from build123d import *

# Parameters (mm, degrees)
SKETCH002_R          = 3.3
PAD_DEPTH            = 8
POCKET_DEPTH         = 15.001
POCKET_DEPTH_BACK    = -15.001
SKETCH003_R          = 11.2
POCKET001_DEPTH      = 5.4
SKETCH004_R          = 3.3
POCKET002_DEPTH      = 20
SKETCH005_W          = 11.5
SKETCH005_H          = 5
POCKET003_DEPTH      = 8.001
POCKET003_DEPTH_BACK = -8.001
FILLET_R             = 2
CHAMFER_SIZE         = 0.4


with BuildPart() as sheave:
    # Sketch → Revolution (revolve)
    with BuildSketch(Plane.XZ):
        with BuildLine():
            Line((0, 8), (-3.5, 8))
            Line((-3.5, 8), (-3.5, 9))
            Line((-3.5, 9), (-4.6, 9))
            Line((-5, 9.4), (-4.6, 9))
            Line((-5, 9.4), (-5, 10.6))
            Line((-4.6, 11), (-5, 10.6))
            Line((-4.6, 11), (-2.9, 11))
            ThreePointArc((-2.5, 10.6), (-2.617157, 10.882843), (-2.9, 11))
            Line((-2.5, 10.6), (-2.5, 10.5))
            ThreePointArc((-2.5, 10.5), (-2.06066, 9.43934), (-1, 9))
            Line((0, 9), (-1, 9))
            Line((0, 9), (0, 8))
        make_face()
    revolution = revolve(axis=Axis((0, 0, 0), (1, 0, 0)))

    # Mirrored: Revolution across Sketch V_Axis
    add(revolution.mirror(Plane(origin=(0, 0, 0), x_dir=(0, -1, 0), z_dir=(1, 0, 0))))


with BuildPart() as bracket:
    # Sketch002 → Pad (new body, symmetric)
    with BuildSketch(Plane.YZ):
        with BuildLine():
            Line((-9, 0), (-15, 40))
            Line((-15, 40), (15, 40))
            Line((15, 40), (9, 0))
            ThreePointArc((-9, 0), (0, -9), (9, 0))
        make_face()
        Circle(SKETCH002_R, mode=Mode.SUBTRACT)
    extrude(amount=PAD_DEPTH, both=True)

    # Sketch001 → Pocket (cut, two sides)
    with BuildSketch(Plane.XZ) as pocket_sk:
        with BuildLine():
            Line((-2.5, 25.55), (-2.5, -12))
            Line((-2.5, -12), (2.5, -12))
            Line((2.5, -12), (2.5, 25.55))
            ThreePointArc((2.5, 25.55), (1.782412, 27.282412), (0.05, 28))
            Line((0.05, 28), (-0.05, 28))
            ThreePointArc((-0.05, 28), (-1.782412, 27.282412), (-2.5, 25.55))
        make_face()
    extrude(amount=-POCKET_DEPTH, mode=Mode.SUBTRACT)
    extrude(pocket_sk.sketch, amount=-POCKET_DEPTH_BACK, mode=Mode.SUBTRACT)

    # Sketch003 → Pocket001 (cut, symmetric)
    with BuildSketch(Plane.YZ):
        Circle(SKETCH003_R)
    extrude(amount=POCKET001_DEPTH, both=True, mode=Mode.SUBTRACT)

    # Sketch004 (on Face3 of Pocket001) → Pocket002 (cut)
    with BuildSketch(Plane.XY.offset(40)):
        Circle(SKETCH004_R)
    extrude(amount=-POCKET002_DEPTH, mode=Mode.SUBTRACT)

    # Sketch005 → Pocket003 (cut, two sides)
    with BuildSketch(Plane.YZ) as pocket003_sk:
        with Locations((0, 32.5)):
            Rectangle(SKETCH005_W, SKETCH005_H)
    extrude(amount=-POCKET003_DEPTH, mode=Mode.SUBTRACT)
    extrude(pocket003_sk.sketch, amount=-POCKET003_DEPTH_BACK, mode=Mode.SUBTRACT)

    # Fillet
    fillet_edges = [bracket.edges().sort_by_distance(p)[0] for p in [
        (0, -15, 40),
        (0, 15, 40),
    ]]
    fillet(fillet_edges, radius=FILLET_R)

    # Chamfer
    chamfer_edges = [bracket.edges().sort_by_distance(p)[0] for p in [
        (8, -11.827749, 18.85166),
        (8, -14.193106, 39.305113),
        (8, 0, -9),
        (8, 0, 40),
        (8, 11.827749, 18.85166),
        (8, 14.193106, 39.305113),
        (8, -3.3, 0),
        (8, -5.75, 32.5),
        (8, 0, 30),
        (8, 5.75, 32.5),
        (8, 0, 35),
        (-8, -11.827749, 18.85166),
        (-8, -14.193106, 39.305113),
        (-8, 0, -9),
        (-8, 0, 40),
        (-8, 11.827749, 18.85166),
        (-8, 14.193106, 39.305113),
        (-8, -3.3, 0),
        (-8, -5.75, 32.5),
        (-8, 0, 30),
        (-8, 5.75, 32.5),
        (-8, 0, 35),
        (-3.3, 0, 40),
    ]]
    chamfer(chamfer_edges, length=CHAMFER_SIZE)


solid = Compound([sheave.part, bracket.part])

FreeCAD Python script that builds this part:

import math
import FreeCAD as App
import Part
import Sketcher
Q = App.Units.Quantity


def edges_at(feature, points):
    """Names of the edges that pass closest to the given points."""
    edges = feature.Shape.Edges
    near = lambda p: min(range(len(edges)), key=lambda i: edges[i].distToShape(Part.Vertex(*p))[0])
    return sorted({f"Edge{near(p) + 1}" for p in points})

doc = App.newDocument("Part")
body = doc.addObject("PartDesign::Body", "Body")

sketch1 = body.newObject("Sketcher::SketchObject", "Sketch")
sketch1.AttachmentSupport = (doc.getObject("XZ_Plane"), [""])
sketch1.MapMode = "FlatFace"
sketch1.addGeometry([
    Part.LineSegment(App.Vector(-3.5, 8, 0), App.Vector(0, 8, 0)),
    Part.LineSegment(App.Vector(0, 8, 0), App.Vector(0, 9, 0)),
    Part.LineSegment(App.Vector(0, 9, 0), App.Vector(-1, 9, 0)),
    Part.ArcOfCircle(Part.Circle(App.Vector(-1, 10.5, 0), App.Vector(0, 0, 1), 1.5), math.radians(-180), math.radians(-90)),
    Part.LineSegment(App.Vector(-2.5, 10.5, 0), App.Vector(-2.5, 10.6, 0)),
    Part.ArcOfCircle(Part.Circle(App.Vector(-2.9, 10.6, 0), App.Vector(0, 0, 1), 0.4), math.radians(0), math.radians(90)),
    Part.LineSegment(App.Vector(-2.9, 11, 0), App.Vector(-4.6, 11, 0)),
    Part.LineSegment(App.Vector(-4.6, 11, 0), App.Vector(-5, 10.6, 0)),
    Part.LineSegment(App.Vector(-5, 10.6, 0), App.Vector(-5, 9.4, 0)),
    Part.LineSegment(App.Vector(-5, 9.4, 0), App.Vector(-4.6, 9, 0)),
    Part.LineSegment(App.Vector(-4.6, 9, 0), App.Vector(-3.5, 9, 0)),
    Part.LineSegment(App.Vector(-3.5, 9, 0), App.Vector(-3.5, 8, 0)),
], False)
sketch1.addConstraint([
    Sketcher.Constraint("Coincident", 0, 2, 1, 1),
    Sketcher.Constraint("Coincident", 1, 2, 2, 1),
    Sketcher.Constraint("Tangent", 2, 2, 3, 2),
    Sketcher.Constraint("Tangent", 3, 1, 4, 1),
    Sketcher.Constraint("Coincident", 4, 2, 5, 1),
    Sketcher.Constraint("Coincident", 5, 2, 6, 1),
    Sketcher.Constraint("Coincident", 6, 2, 7, 1),
    Sketcher.Constraint("Coincident", 7, 2, 8, 1),
    Sketcher.Constraint("Coincident", 8, 2, 9, 1),
    Sketcher.Constraint("Coincident", 9, 2, 10, 1),
    Sketcher.Constraint("Coincident", 10, 2, 11, 1),
    Sketcher.Constraint("Coincident", 11, 2, 0, 1),
    Sketcher.Constraint("Horizontal", 0),
    Sketcher.Constraint("Vertical", 1),
    Sketcher.Constraint("Horizontal", 2),
    Sketcher.Constraint("Vertical", 4),
    Sketcher.Constraint("Horizontal", 6),
    Sketcher.Constraint("Vertical", 8),
    Sketcher.Constraint("Horizontal", 10),
    Sketcher.Constraint("Vertical", 11),
    Sketcher.Constraint("PointOnObject", 0, 2, -2),
    Sketcher.Constraint("Perpendicular", 7, 9),
    Sketcher.Constraint("Horizontal", 5, 3, 4, 2),
    Sketcher.Constraint("Horizontal", 4, 2, 7, 2),
    Sketcher.Constraint("Horizontal", 2, 2, 9, 2),
    Sketcher.Constraint("Vertical", 6, 2, 9, 2),
    Sketcher.Constraint("Equal", 2, 1),
    Sketcher.Constraint("Equal", 7, 9),
    Sketcher.Constraint("Radius", 3, Q("1.500001 mm")),
    Sketcher.Constraint("Radius", 5, Q("0.399999 mm")),
    Sketcher.Constraint("DistanceX", 2, 2, 2, 1, Q("1 mm")),
    Sketcher.Constraint("DistanceX", 0, 1, 0, 2, Q("3.5 mm")),
    Sketcher.Constraint("DistanceX", 6, 2, 6, 1, Q("1.7 mm")),
    Sketcher.Constraint("DistanceX", 10, 1, 10, 2, Q("1.1 mm")),
    Sketcher.Constraint("DistanceY", 4, 1, 4, 2, Q("0.1 mm")),
    Sketcher.Constraint("DistanceY", -1, 1, 0, 2, Q("8 mm")),
])
revolution = body.newObject("PartDesign::Revolution", "Revolution")
revolution.Profile = sketch1
revolution.ReferenceAxis = (sketch1, ["H_Axis"])
revolution.Angle = 360
doc.recompute()

mirrored = body.newObject("PartDesign::Mirrored", "Mirrored")
mirrored.Originals = [revolution]
mirrored.MirrorPlane = (doc.getObject("YZ_Plane"), [""])
body.Tip = mirrored
body2 = doc.addObject("PartDesign::Body", "Body001")

sketch2 = body2.newObject("Sketcher::SketchObject", "Sketch001")
sketch2.AttachmentSupport = (doc.getObject("YZ_Plane001"), [""])
sketch2.MapMode = "FlatFace"
sketch2.addGeometry([
    Part.LineSegment(App.Vector(-15, 40, 0), App.Vector(-9, 0, 0)),
    Part.ArcOfCircle(Part.Circle(App.Vector(0, 0, 0), App.Vector(0, 0, 1), 9), math.radians(180), math.radians(360)),
    Part.LineSegment(App.Vector(9, 0, 0), App.Vector(15, 40, 0)),
    Part.LineSegment(App.Vector(15, 40, 0), App.Vector(-15, 40, 0)),
    Part.Circle(App.Vector(0, 0, 0), App.Vector(0, 0, 1), 3.3),
], False)
sketch2.addConstraint([
    Sketcher.Constraint("Coincident", 0, 2, 1, 1),
    Sketcher.Constraint("Coincident", 1, 2, 2, 1),
    Sketcher.Constraint("Coincident", 2, 2, 3, 1),
    Sketcher.Constraint("Coincident", 3, 2, 0, 1),
    Sketcher.Constraint("Horizontal", 3),
    Sketcher.Constraint("Coincident", 1, 3, -1, 1),
    Sketcher.Constraint("Coincident", 4, 3, -1, 1),
    Sketcher.Constraint("PointOnObject", 0, 2, -1),
    Sketcher.Constraint("PointOnObject", 1, 2, -1),
    Sketcher.Constraint("Equal", 0, 2),
    Sketcher.Constraint("Radius", 1, Q("9 mm")),
    Sketcher.Constraint("Diameter", 4, Q("6.6 mm")),
    Sketcher.Constraint("DistanceX", 3, 2, 3, 1, Q("30 mm")),
    Sketcher.Constraint("DistanceY", -1, 1, 2, 2, Q("40 mm")),
])
pad1 = body2.newObject("PartDesign::Pad", "Pad")
pad1.Profile = sketch2
pad1.Length = 16
pad1.Midplane = True

sketch3 = body2.newObject("Sketcher::SketchObject", "Sketch002")
sketch3.AttachmentSupport = (doc.getObject("XZ_Plane001"), [""])
sketch3.MapMode = "FlatFace"
sketch3.addGeometry([
    Part.LineSegment(App.Vector(-2.5, 25.55, 0), App.Vector(-2.5, -12, 0)),
    Part.LineSegment(App.Vector(-2.5, -12, 0), App.Vector(2.5, -12, 0)),
    Part.LineSegment(App.Vector(2.5, -12, 0), App.Vector(2.5, 25.55, 0)),
    Part.ArcOfCircle(Part.Circle(App.Vector(0.05, 25.55, 0), App.Vector(0, 0, 1), 2.45), math.radians(0), math.radians(90)),
    Part.LineSegment(App.Vector(0.05, 28, 0), App.Vector(-0.05, 28, 0)),
    Part.ArcOfCircle(Part.Circle(App.Vector(-0.05, 25.55, 0), App.Vector(0, 0, 1), 2.45), math.radians(90), math.radians(180)),
], False)
sketch3.addConstraint([
    Sketcher.Constraint("Coincident", 0, 2, 1, 1),
    Sketcher.Constraint("Coincident", 1, 2, 2, 1),
    Sketcher.Constraint("Tangent", 2, 2, 3, 1),
    Sketcher.Constraint("Tangent", 3, 2, 4, 1),
    Sketcher.Constraint("Tangent", 4, 2, 5, 1),
    Sketcher.Constraint("Tangent", 5, 2, 0, 1),
    Sketcher.Constraint("Vertical", 0),
    Sketcher.Constraint("Horizontal", 1),
    Sketcher.Constraint("Vertical", 2),
    Sketcher.Constraint("Horizontal", 4),
    Sketcher.Constraint("Equal", 3, 5),
    Sketcher.Constraint("DistanceX", 1, 1, 1, 2, Q("5 mm")),
    Sketcher.Constraint("Radius", 3, Q("2.449999 mm")),
    Sketcher.Constraint("DistanceY", 0, 2, -1, 1, Q("12 mm")),
    Sketcher.Constraint("DistanceY", -1, 1, 3, 2, Q("28 mm")),
    Sketcher.Constraint("DistanceX", 0, 2, -1, 1, Q("2.5 mm")),
])
pocket1 = body2.newObject("PartDesign::Pocket", "Pocket")
pocket1.Profile = sketch3
pocket1.Type = "ThroughAll"
pocket1.Midplane = True

sketch4 = body2.newObject("Sketcher::SketchObject", "Sketch003")
sketch4.AttachmentSupport = (doc.getObject("YZ_Plane001"), [""])
sketch4.MapMode = "FlatFace"
sketch4.addGeometry(Part.Circle(App.Vector(0, 0, 0), App.Vector(0, 0, 1), 11), False)
sketch4.addConstraint([
    Sketcher.Constraint("Coincident", 0, 3, -1, 1),
    Sketcher.Constraint("Diameter", 0, Q("22.4 mm")),
])
pocket2 = body2.newObject("PartDesign::Pocket", "Pocket001")
pocket2.Profile = sketch4
pocket2.Length = 10.8
pocket2.Midplane = True

sketch5 = body2.newObject("Sketcher::SketchObject", "Sketch004")
sketch5.AttachmentSupport = (doc.getObject("XY_Plane001"), [""])
sketch5.MapMode = "FlatFace"
sketch5.AttachmentOffset = App.Placement(App.Vector(0, 0, 40), App.Rotation())
sketch5.addGeometry(Part.Circle(App.Vector(0, 0, 0), App.Vector(0, 0, 1), 3.3), False)
sketch5.addConstraint([
    Sketcher.Constraint("Coincident", 0, 3, -1, 1),
    Sketcher.Constraint("Diameter", 0, Q("6.6 mm")),
])
pocket3 = body2.newObject("PartDesign::Pocket", "Pocket002")
pocket3.Profile = sketch5
pocket3.Length = 20

sketch6 = body2.newObject("Sketcher::SketchObject", "Sketch005")
sketch6.AttachmentSupport = (doc.getObject("YZ_Plane001"), [""])
sketch6.MapMode = "FlatFace"
sketch6.addGeometry([
    Part.LineSegment(App.Vector(-6, 35, 0), App.Vector(-6, 30, 0)),
    Part.LineSegment(App.Vector(-6, 30, 0), App.Vector(6, 30, 0)),
    Part.LineSegment(App.Vector(6, 30, 0), App.Vector(6, 35, 0)),
    Part.LineSegment(App.Vector(6, 35, 0), App.Vector(-6, 35, 0)),
], False)
sketch6.addConstraint([
    Sketcher.Constraint("Coincident", 0, 2, 1, 1),
    Sketcher.Constraint("Coincident", 1, 2, 2, 1),
    Sketcher.Constraint("Coincident", 2, 2, 3, 1),
    Sketcher.Constraint("Coincident", 3, 2, 0, 1),
    Sketcher.Constraint("Vertical", 0),
    Sketcher.Constraint("Horizontal", 1),
    Sketcher.Constraint("Vertical", 2),
    Sketcher.Constraint("Horizontal", 3),
    Sketcher.Constraint("DistanceY", 0, 2, 0, 1, Q("5 mm")),
    Sketcher.Constraint("DistanceX", 1, 1, 1, 2, Q("11.5 mm")),
    Sketcher.Constraint("DistanceY", -1, 1, 0, 2, Q("30 mm")),
    Sketcher.Constraint("DistanceX", 0, 2, -1, 1, Q("5.75 mm")),
])
pocket4 = body2.newObject("PartDesign::Pocket", "Pocket003")
pocket4.Profile = sketch6
pocket4.Type = "ThroughAll"
pocket4.Midplane = True
doc.recompute()

fillet = body2.newObject("PartDesign::Fillet", "Fillet")
fillet.Base = (pocket4, edges_at(pocket4, [(0, -15, 40), (0, 15, 40)]))
fillet.Radius = 2
doc.recompute()

chamfer = body2.newObject("PartDesign::Chamfer", "Chamfer")
chamfer.Base = (fillet, edges_at(fillet, [
    (8, -11.828, 18.852),
    (8, -14.193, 39.305),
    (8, 0, -9),
    (8, 0, 40),
    (8, 11.828, 18.852),
    (8, 14.193, 39.305),
    (8, -3.3, 0),
    (8, -5.75, 32.5),
    (8, 0, 30),
    (8, 5.75, 32.5),
    (8, 0, 35),
    (-8, -11.828, 18.852),
    (-8, -14.193, 39.305),
    (-8, 0, -9),
    (-8, 0, 40),
    (-8, 11.828, 18.852),
    (-8, 14.193, 39.305),
    (-8, -3.3, 0),
    (-8, -5.75, 32.5),
    (-8, 0, 30),
    (-8, 5.75, 32.5),
    (-8, 0, 35),
    (-3.3, 0, 40),
]))
chamfer.Size = 0.4

doc.recompute()
